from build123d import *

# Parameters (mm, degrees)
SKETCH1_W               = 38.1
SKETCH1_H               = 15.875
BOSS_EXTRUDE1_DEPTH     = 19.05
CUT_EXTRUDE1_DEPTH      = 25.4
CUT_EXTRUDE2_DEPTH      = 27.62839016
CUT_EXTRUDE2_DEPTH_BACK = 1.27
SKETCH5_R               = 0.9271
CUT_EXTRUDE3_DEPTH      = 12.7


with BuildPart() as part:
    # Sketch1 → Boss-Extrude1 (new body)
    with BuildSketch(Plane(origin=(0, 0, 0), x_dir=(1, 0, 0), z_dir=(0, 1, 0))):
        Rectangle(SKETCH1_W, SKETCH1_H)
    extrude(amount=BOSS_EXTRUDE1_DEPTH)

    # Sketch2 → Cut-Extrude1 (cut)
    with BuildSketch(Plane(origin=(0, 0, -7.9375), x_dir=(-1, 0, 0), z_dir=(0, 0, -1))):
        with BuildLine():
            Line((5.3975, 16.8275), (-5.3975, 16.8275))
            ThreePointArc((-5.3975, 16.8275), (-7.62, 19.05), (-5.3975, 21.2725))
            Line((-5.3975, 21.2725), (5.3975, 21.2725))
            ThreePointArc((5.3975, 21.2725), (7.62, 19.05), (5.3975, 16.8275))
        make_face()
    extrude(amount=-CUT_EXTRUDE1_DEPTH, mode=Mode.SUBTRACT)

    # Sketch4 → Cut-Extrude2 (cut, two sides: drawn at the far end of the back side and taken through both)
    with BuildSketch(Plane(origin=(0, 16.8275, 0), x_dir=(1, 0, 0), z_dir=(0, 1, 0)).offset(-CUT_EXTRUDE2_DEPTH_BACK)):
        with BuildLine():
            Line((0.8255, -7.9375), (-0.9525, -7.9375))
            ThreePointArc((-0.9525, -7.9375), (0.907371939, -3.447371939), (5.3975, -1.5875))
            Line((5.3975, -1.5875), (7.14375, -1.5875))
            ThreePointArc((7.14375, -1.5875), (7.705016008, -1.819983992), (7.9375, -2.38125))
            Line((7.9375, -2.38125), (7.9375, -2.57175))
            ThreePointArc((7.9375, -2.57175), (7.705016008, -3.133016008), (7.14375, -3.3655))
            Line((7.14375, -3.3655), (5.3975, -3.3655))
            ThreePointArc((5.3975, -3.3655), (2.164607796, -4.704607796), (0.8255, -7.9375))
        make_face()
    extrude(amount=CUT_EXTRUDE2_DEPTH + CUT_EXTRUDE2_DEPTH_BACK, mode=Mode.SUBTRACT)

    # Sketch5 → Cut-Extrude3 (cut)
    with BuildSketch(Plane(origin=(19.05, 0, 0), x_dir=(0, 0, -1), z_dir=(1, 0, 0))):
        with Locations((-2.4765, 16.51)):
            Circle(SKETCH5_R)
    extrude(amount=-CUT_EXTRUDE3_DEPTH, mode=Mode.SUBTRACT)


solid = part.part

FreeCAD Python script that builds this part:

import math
import FreeCAD as App
import Part
import Sketcher
Q = App.Units.Quantity

doc = App.newDocument("Part")
params = doc.addObject("Spreadsheet::Sheet", "Params")
for row, (alias, value) in enumerate([
    ("sketch1_width", "1.5 in"),
    ("sketch1_height", "0.625 in"),
    ("pad1_length", "0.75 in"),
    ("sketch2_width", "0.425 in"),
    ("pocket1_length", "1 in"),
    ("sketch3_radius", "0.18 in"),
    ("sketch3_radius2", "0.25 in"),
    ("sketch3_radius3", "0.03125 in"),
    ("pocket2_length", "27.62839 mm"),
    ("pocket2_length2", "0.05 in"),
    ("sketch4_diameter", "0.073 in"),
    ("pocket3_length", "0.5 in"),
], start=1):
    params.set(f"A{row}", alias)
    params.set(f"B{row}", "=" + value)
    params.setAlias(f"B{row}", alias)

body = doc.addObject("PartDesign::Body", "Body")

# Sketch on XZ plane
sketch1 = body.newObject("Sketcher::SketchObject", "Sketch")
sketch1.AttachmentSupport = (doc.getObject("XZ_Plane"), [""])
sketch1.MapMode = "FlatFace"
sketch1.addGeometry(Part.LineSegment(App.Vector(-19, -8, 0), App.Vector(-19, 8, 0)), False)
sketch1.addGeometry(Part.LineSegment(App.Vector(-19, 8, 0), App.Vector(19, 8, 0)), False)
sketch1.addGeometry(Part.LineSegment(App.Vector(19, 8, 0), App.Vector(19, -8, 0)), False)
sketch1.addGeometry(Part.LineSegment(App.Vector(19, -8, 0), App.Vector(-19, -8, 0)), False)
sketch1.addConstraint(Sketcher.Constraint("Coincident", 0, 2, 1, 1))
sketch1.addConstraint(Sketcher.Constraint("Coincident", 1, 2, 2, 1))
sketch1.addConstraint(Sketcher.Constraint("Coincident", 2, 2, 3, 1))
sketch1.addConstraint(Sketcher.Constraint("Coincident", 3, 2, 0, 1))
sketch1.addConstraint(Sketcher.Constraint("Vertical", 0))
sketch1.addConstraint(Sketcher.Constraint("Horizontal", 1))
sketch1.addConstraint(Sketcher.Constraint("Vertical", 2))
sketch1.addConstraint(Sketcher.Constraint("Horizontal", 3))
sketch1.addConstraint(Sketcher.Constraint("Symmetric", 0, 2, 2, 2, -1, 1))
sketch1.addConstraint(Sketcher.Constraint("DistanceX", 1, 1, 1, 2, Q("1.5 in")))
sketch1.addConstraint(Sketcher.Constraint("DistanceY", 0, 1, 0, 2, Q("0.625 in")))
sketch1.setExpression("Constraints[9]", "Params.sketch1_width")
sketch1.setExpression("Constraints[10]", "Params.sketch1_height")
pad1 = body.newObject("PartDesign::Pad", "Pad")
pad1.Profile = sketch1
pad1.setExpression("Length", "Params.pad1_length")
pad1.Reversed = True

# Sketch on XY plane
sketch2 = body.newObject("Sketcher::SketchObject", "Sketch001")
sketch2.AttachmentSupport = (doc.getObject("XY_Plane"), [""])
sketch2.MapMode = "FlatFace"
sketch2.AttachmentOffset = App.Placement(App.Vector(0, 0, -0.3125 * 25.4), App.Rotation())
sketch2.addGeometry(Part.LineSegment(App.Vector(5.4, 16.8, 0), App.Vector(-5.4, 16.8, 0)), False)
sketch2.addGeometry(Part.ArcOfCircle(Part.Circle(App.Vector(-5.4, 19.1, 0), App.Vector(0, 0, 1), 2.2), math.radians(90), math.radians(270)), False)
sketch2.addGeometry(Part.LineSegment(App.Vector(-5.4, 21.3, 0), App.Vector(5.4, 21.3, 0)), False)
sketch2.addGeometry(Part.ArcOfCircle(Part.Circle(App.Vector(5.4, 19.1, 0), App.Vector(0, 0, 1), 2.2), math.radians(-90), math.radians(90)), False)
sketch2.addConstraint(Sketcher.Constraint("Tangent", 0, 2, 1, 2))
sketch2.addConstraint(Sketcher.Constraint("Tangent", 1, 1, 2, 1))
sketch2.addConstraint(Sketcher.Constraint("Tangent", 2, 2, 3, 2))
sketch2.addConstraint(Sketcher.Constraint("Tangent", 3, 1, 0, 1))
sketch2.addConstraint(Sketcher.Constraint("Horizontal", 0))
sketch2.addConstraint(Sketcher.Constraint("Horizontal", 2))
sketch2.addConstraint(Sketcher.Constraint("Radius", 1, Q("0.0875 in")))
sketch2.addConstraint(Sketcher.Constraint("DistanceX", 0, 2, 0, 1, Q("0.425 in")))
sketch2.addConstraint(Sketcher.Constraint("DistanceY", -1, 1, 1, 3, Q("0.75 in")))
sketch2.addConstraint(Sketcher.Constraint("DistanceX", 1, 3, -1, 1, Q("0.2125 in")))
sketch2.setExpression("Constraints[7]", "Params.sketch2_width")
pocket1 = body.newObject("PartDesign::Pocket", "Pocket")
pocket1.Profile = sketch2
pocket1.setExpression("Length", "Params.pocket1_length")
pocket1.Reversed = True

# Sketch on XZ plane
sketch3 = body.newObject("Sketcher::SketchObject", "Sketch002")
sketch3.AttachmentSupport = (doc.getObject("XZ_Plane"), [""])
sketch3.MapMode = "FlatFace"
sketch3.AttachmentOffset = App.Placement(App.Vector(0, 0, -0.6625 * 25.4), App.Rotation())
sketch3.addGeometry(Part.LineSegment(App.Vector(-0.95, 7.94, 0), App.Vector(0.83, 7.94, 0)), False)
sketch3.addGeometry(Part.ArcOfCircle(Part.Circle(App.Vector(5.4, 7.94, 0), App.Vector(0, 0, 1), 4.57), math.radians(180), math.radians(270)), False)
sketch3.addGeometry(Part.LineSegment(App.Vector(5.4, 3.37, 0), App.Vector(7.14, 3.37, 0)), False)
sketch3.addGeometry(Part.ArcOfCircle(Part.Circle(App.Vector(7.14, 2.57, 0), App.Vector(0, 0, 1), 0.79), math.radians(0), math.radians(90)), False)
sketch3.addGeometry(Part.LineSegment(App.Vector(7.94, 2.57, 0), App.Vector(7.94, 2.38, 0)), False)
sketch3.addGeometry(Part.ArcOfCircle(Part.Circle(App.Vector(7.14, 2.38, 0), App.Vector(0, 0, 1), 0.79), math.radians(-90), math.radians(0)), False)
sketch3.addGeometry(Part.LineSegment(App.Vector(7.14, 1.59, 0), App.Vector(5.4, 1.59, 0)), False)
sketch3.addGeometry(Part.ArcOfCircle(Part.Circle(App.Vector(5.4, 7.94, 0), App.Vector(0, 0, 1), 6.35), math.radians(180), math.radians(270)), False)
sketch3.addConstraint(Sketcher.Constraint("Coincident", 0, 2, 1, 1))
sketch3.addConstraint(Sketcher.Constraint("Tangent", 1, 2, 2, 1))
sketch3.addConstraint(Sketcher.Constraint("Tangent", 2, 2, 3, 2))
sketch3.addConstraint(Sketcher.Constraint("Tangent", 3, 1, 4, 1))
sketch3.addConstraint(Sketcher.Constraint("Tangent", 4, 2, 5, 2))
sketch3.addConstraint(Sketcher.Constraint("Tangent", 5, 1, 6, 1))
sketch3.addConstraint(Sketcher.Constraint("Tangent", 6, 2, 7, 2))
sketch3.addConstraint(Sketcher.Constraint("Coincident", 7, 1, 0, 1))
sketch3.addConstraint(Sketcher.Constraint("Horizontal", 0))
sketch3.addConstraint(Sketcher.Constraint("Horizontal", 2))
sketch3.addConstraint(Sketcher.Constraint("Vertical", 4))
sketch3.addConstraint(Sketcher.Constraint("Horizontal", 6))
sketch3.addConstraint(Sketcher.Constraint("Coincident", 7, 3, 1, 3))
sketch3.addConstraint(Sketcher.Constraint("Equal", 3, 5))
sketch3.addConstraint(Sketcher.Constraint("Horizontal", 7, 3, 0, 2))
sketch3.addConstraint(Sketcher.Constraint("Radius", 1, Q("0.18 in")))
sketch3.addConstraint(Sketcher.Constraint("Radius", 7, Q("0.25 in")))
sketch3.addConstraint(Sketcher.Constraint("Radius", 3, Q("0.03125 in")))
sketch3.addConstraint(Sketcher.Constraint("DistanceX", 1, 2, 3, 1, Q("0.1 in")))
sketch3.addConstraint(Sketcher.Constraint("DistanceY", -1, 1, 1, 3, Q("0.3125 in")))
sketch3.addConstraint(Sketcher.Constraint("DistanceX", -1, 1, 3, 3, Q("0.28125 in")))
sketch3.setExpression("Constraints[15]", "Params.sketch3_radius")
sketch3.setExpression("Constraints[16]", "Params.sketch3_radius2")
sketch3.setExpression("Constraints[17]", "Params.sketch3_radius3")
pocket2 = body.newObject("PartDesign::Pocket", "Pocket001")
pocket2.Profile = sketch3
pocket2.Type = "TwoLengths"
pocket2.setExpression("Length", "Params.pocket2_length")
pocket2.setExpression("Length2", "Params.pocket2_length2")

# Sketch on YZ plane
sketch4 = body.newObject("Sketcher::SketchObject", "Sketch003")
sketch4.AttachmentSupport = (doc.getObject("YZ_Plane"), [""])
sketch4.MapMode = "FlatFace"
sketch4.AttachmentOffset = App.Placement(App.Vector(0, 0, 0.75 * 25.4), App.Rotation())
sketch4.addGeometry(Part.Circle(App.Vector(16.5, 2.5, 0), App.Vector(0, 0, 1), 0.9), False)
sketch4.addConstraint(Sketcher.Constraint("Diameter", 0, Q("0.073 in")))
sketch4.addConstraint(Sketcher.Constraint("DistanceX", -1, 1, 0, 3, Q("0.65 in")))
sketch4.addConstraint(Sketcher.Constraint("DistanceY", -1, 1, 0, 3, Q("0.0975 in")))
sketch4.setExpression("Constraints[0]", "Params.sketch4_diameter")
pocket3 = body.newObject("PartDesign::Pocket", "Pocket002")
pocket3.Profile = sketch4
pocket3.setExpression("Length", "Params.pocket3_length")

doc.recompute()
